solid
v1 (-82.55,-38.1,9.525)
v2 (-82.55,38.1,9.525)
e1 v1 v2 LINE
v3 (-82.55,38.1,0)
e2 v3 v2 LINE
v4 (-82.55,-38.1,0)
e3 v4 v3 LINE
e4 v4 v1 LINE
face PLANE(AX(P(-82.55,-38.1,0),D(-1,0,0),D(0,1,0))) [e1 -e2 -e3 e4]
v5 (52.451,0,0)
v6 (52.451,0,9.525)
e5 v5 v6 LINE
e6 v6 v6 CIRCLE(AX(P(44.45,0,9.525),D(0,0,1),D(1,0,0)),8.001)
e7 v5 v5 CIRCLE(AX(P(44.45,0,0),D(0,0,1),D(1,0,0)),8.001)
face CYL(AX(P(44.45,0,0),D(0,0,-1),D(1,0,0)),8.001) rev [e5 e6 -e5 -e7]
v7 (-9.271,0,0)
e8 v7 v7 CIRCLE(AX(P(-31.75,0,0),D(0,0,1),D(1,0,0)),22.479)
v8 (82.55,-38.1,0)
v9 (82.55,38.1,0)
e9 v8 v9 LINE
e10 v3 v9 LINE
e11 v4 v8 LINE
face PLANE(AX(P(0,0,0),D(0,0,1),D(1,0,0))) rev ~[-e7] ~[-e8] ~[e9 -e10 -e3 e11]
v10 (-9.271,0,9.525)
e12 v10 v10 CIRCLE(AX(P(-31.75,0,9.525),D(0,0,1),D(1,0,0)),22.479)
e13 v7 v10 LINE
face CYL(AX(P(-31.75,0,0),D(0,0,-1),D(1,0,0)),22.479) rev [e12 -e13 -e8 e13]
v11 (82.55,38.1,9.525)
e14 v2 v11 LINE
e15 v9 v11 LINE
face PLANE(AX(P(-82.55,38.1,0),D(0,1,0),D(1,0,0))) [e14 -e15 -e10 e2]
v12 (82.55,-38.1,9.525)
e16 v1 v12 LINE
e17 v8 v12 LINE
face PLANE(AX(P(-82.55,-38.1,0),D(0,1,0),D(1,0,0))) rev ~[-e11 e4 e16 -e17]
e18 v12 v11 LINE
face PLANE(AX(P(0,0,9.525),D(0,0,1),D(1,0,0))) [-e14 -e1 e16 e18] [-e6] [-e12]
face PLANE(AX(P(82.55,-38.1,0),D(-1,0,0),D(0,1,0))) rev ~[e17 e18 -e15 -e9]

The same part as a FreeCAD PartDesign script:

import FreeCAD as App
import Part
import Sketcher

V = App.Vector
Q = App.Units.Quantity

doc = App.newDocument("Part")
body = doc.addObject("PartDesign::Body", "Body")

# Sketch on XY plane
sketch1 = doc.addObject("Sketcher::SketchObject", "Sketch")
body.addObject(sketch1)
sketch1.AttachmentSupport = (doc.XY_Plane, [""])
sketch1.MapMode = "FlatFace"
sketch1.addGeometry([
    Part.LineSegment(V(-83, 38, 0), V(-83, -38, 0)),  # 0
    Part.LineSegment(V(-83, -38, 0), V(83, -38, 0)),  # 1
    Part.LineSegment(V(83, -38, 0), V(83, 38, 0)),  # 2
    Part.LineSegment(V(83, 38, 0), V(-83, 38, 0)),  # 3
    Part.Circle(V(-32, 0, 0), V(0, 0, 1), 22),  # 4
    Part.Circle(V(44, 0, 0), V(0, 0, 1), 8),  # 5
], False)
sketch1.addConstraint([
    Sketcher.Constraint("Coincident", 0, 2, 1, 1),
    Sketcher.Constraint("Coincident", 1, 2, 2, 1),
    Sketcher.Constraint("Coincident", 2, 2, 3, 1),
    Sketcher.Constraint("Coincident", 3, 2, 0, 1),
    Sketcher.Constraint("Vertical", 0),
    Sketcher.Constraint("Horizontal", 1),
    Sketcher.Constraint("Vertical", 2),
    Sketcher.Constraint("Horizontal", 3),
    Sketcher.Constraint("Symmetric", 0, 2, 2, 2, -1, 1),
    Sketcher.Constraint("PointOnObject", 4, 3, -1),
    Sketcher.Constraint("PointOnObject", 5, 3, -1),
    Sketcher.Constraint("Diameter", 4, Q("1.77 in")),
    Sketcher.Constraint("Diameter", 5, Q("0.63 in")),
    Sketcher.Constraint("DistanceY", 0, 2, 0, 1, Q("3 in")),
    Sketcher.Constraint("DistanceX", 1, 1, 1, 2, Q("6.5 in")),
    Sketcher.Constraint("DistanceX", 4, 3, 5, 3, Q("3 in")),
    Sketcher.Constraint("DistanceX", 0, 2, 4, 3, Q("2 in")),
])
pad1 = doc.addObject("PartDesign::Pad", "Pad")
body.addObject(pad1)
pad1.Profile = sketch1
pad1.Length = Q("0.375 in")

doc.recompute()
